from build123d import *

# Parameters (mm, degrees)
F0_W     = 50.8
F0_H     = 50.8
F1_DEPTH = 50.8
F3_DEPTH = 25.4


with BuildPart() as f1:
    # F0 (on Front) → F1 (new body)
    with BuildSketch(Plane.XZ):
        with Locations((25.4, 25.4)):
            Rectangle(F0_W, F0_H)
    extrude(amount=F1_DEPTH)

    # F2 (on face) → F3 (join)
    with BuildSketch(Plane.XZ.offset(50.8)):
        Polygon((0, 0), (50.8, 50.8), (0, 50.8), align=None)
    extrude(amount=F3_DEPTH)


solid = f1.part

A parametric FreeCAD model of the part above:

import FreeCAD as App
import Part
import Sketcher
Q = App.Units.Quantity

doc = App.newDocument("Part")
body = doc.addObject("PartDesign::Body", "Body")

sketch1 = body.newObject("Sketcher::SketchObject", "Sketch")
sketch1.AttachmentSupport = (doc.getObject("XZ_Plane"), [""])
sketch1.MapMode = "FlatFace"
sketch1.addGeometry(Part.LineSegment(App.Vector(0, 51, 0), App.Vector(0, 0, 0)), False)
sketch1.addGeometry(Part.LineSegment(App.Vector(0, 0, 0), App.Vector(51, 0, 0)), False)
sketch1.addGeometry(Part.LineSegment(App.Vector(51, 0, 0), App.Vector(51, 51, 0)), False)
sketch1.addGeometry(Part.LineSegment(App.Vector(51, 51, 0), App.Vector(0, 51, 0)), False)
sketch1.addConstraint(Sketcher.Constraint("Coincident", 0, 2, 1, 1))
sketch1.addConstraint(Sketcher.Constraint("Coincident", 1, 2, 2, 1))
sketch1.addConstraint(Sketcher.Constraint("Coincident", 2, 2, 3, 1))
sketch1.addConstraint(Sketcher.Constraint("Coincident", 3, 2, 0, 1))
sketch1.addConstraint(Sketcher.Constraint("Vertical", 0))
sketch1.addConstraint(Sketcher.Constraint("Horizontal", 1))
sketch1.addConstraint(Sketcher.Constraint("Vertical", 2))
sketch1.addConstraint(Sketcher.Constraint("Horizontal", 3))
sketch1.addConstraint(Sketcher.Constraint("Coincident", 0, 2, -1, 1))
sketch1.addConstraint(Sketcher.Constraint("Equal", 3, 0))
sketch1.addConstraint(Sketcher.Constraint("DistanceX", 1, 1, 1, 2, Q("2 in")))
pad1 = body.newObject("PartDesign::Pad", "Pad")
pad1.Profile = sketch1
pad1.Length = Q("2 in")

sketch2 = body.newObject("Sketcher::SketchObject", "Sketch001")
sketch2.AttachmentSupport = (doc.getObject("XZ_Plane"), [""])
sketch2.MapMode = "FlatFace"
sketch2.AttachmentOffset = App.Placement(App.Vector(0, 0, 2 * 25.4), App.Rotation())
sketch2.addGeometry(Part.LineSegment(App.Vector(0, 0, 0), App.Vector(51, 51, 0)), False)
sketch2.addGeometry(Part.LineSegment(App.Vector(51, 51, 0), App.Vector(0, 51, 0)), False)
sketch2.addGeometry(Part.LineSegment(App.Vector(0, 51, 0), App.Vector(0, 0, 0)), False)
sketch2.addConstraint(Sketcher.Constraint("Coincident", 0, 2, 1, 1))
sketch2.addConstraint(Sketcher.Constraint("Coincident", 1, 2, 2, 1))
sketch2.addConstraint(Sketcher.Constraint("Coincident", 2, 2, 0, 1))
sketch2.addConstraint(Sketcher.Constraint("Horizontal", 1))
sketch2.addConstraint(Sketcher.Constraint("Vertical", 2))
sketch2.addConstraint(Sketcher.Constraint("Coincident", 2, 2, -1, 1))
sketch2.addConstraint(Sketcher.Constraint("Equal", 1, 2))
sketch2.addConstraint(Sketcher.Constraint("DistanceX", 1, 2, 1, 1, Q("2 in")))
pad2 = body.newObject("PartDesign::Pad", "Pad001")
pad2.Profile = sketch2
pad2.Length = Q("1 in")

doc.recompute()
